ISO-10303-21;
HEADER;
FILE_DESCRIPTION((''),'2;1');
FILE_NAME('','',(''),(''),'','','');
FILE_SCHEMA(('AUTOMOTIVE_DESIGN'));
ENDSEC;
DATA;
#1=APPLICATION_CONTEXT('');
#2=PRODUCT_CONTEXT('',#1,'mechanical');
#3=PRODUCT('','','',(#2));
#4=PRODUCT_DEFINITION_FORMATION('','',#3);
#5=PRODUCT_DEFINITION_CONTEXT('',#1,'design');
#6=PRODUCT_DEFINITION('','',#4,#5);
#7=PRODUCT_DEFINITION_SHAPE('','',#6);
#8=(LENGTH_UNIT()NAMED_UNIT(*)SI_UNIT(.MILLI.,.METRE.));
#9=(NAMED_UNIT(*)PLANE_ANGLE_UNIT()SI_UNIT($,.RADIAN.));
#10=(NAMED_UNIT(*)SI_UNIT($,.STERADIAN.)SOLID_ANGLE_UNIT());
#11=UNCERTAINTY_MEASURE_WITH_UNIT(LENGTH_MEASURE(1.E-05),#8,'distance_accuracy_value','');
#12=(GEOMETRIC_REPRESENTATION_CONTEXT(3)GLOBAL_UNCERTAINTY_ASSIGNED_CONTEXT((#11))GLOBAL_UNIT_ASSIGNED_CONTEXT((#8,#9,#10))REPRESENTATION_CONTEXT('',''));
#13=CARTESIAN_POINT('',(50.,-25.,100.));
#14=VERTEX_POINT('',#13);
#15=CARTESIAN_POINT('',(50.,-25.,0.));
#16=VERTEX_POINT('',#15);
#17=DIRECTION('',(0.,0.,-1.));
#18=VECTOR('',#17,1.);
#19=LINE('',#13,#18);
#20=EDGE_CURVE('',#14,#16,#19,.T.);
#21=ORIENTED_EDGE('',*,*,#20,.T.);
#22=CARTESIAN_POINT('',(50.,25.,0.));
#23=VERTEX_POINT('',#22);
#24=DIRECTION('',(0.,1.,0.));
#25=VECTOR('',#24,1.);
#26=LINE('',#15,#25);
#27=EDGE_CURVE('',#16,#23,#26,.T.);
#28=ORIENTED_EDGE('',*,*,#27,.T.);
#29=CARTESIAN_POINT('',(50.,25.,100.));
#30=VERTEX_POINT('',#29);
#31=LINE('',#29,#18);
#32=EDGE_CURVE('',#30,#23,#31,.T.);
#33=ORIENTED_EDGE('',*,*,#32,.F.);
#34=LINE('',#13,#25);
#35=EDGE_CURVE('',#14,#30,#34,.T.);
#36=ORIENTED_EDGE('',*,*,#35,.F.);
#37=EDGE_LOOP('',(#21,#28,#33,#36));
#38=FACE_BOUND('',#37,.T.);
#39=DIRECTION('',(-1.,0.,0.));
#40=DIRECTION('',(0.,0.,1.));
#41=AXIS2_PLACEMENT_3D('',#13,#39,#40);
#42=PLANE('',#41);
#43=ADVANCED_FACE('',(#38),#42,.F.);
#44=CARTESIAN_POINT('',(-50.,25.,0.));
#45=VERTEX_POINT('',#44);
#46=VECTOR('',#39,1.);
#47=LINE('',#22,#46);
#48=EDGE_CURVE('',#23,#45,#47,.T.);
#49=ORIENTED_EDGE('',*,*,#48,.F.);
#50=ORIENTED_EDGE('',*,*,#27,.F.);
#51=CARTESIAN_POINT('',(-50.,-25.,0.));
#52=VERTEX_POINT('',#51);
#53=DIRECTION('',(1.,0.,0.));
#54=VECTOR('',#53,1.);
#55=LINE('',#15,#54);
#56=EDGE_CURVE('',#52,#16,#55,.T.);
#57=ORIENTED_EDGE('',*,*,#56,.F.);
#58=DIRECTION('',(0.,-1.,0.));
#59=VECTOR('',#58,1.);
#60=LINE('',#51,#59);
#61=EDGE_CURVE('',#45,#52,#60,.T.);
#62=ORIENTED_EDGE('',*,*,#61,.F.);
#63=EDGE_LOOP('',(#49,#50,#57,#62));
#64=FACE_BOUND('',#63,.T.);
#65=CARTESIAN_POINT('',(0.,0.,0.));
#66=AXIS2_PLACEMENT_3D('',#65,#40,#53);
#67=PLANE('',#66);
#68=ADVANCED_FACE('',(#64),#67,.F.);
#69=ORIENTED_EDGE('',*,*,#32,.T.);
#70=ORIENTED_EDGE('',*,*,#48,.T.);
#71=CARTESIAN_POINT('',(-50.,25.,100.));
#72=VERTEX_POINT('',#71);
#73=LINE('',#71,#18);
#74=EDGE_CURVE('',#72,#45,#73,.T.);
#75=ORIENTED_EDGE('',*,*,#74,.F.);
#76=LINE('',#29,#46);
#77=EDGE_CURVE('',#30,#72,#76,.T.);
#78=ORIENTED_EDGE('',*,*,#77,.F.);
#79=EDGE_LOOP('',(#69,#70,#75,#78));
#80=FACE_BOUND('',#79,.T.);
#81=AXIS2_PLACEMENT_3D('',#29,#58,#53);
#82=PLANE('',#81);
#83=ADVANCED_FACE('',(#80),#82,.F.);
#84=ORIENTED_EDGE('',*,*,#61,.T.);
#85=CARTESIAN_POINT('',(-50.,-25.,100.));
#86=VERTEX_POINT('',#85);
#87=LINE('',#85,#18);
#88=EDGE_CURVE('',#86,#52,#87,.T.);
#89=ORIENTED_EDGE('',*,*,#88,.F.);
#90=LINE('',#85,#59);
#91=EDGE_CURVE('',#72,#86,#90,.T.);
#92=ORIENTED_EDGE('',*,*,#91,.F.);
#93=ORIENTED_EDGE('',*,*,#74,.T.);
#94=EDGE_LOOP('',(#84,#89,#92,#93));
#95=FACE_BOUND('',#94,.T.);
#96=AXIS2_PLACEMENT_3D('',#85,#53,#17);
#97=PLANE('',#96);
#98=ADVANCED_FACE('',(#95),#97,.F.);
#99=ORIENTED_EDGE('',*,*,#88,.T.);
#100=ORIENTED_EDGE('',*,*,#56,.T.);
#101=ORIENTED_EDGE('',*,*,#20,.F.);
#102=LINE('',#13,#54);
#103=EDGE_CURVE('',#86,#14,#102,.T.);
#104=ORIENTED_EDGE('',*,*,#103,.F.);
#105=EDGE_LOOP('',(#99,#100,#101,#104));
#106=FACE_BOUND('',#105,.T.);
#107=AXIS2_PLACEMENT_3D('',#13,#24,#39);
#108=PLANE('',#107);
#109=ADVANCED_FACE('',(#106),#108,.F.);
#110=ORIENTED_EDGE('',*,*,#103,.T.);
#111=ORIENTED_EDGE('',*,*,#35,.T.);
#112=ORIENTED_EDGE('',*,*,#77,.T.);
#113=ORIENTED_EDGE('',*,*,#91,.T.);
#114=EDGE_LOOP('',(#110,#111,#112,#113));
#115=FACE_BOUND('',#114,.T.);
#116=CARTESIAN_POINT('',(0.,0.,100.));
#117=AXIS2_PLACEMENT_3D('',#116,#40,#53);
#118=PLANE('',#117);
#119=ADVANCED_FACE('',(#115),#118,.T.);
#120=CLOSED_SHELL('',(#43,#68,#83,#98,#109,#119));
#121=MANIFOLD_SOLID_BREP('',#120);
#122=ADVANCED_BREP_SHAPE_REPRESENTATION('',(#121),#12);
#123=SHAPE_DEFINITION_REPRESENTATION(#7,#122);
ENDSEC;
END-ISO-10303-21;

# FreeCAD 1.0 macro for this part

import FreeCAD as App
import Part
import Sketcher
from FreeCAD import Vector
Q = App.Units.Quantity


def add_polygon(sketch, points):
    """Adds a closed chain of lines whose ends are joined by coincident constraints."""
    first, n = sketch.GeometryCount, len(points)
    for a, b in zip(points, points[1:] + points[:1]):
        sketch.addGeometry(Part.LineSegment(App.Vector(*a, 0), App.Vector(*b, 0)), False)
    for i in range(n):
        sketch.addConstraint(Sketcher.Constraint("Coincident", first + i, 2, first + (i + 1) % n, 1))

doc = App.newDocument("Part")
body = doc.addObject("PartDesign::Body", "Body")

# Sketch on XY plane
sketch1 = body.newObject("Sketcher::SketchObject", "Sketch")
sketch1.AttachmentSupport = (doc.getObject("XY_Plane"), [""])
sketch1.MapMode = "FlatFace"
add_polygon(sketch1, [(-50, 25), (-50, -25), (50, -25), (50, 25)])  # lines 0-3
sketch1.addConstraint(Sketcher.Constraint("Vertical", 0))
sketch1.addConstraint(Sketcher.Constraint("Horizontal", 1))
sketch1.addConstraint(Sketcher.Constraint("Vertical", 2))
sketch1.addConstraint(Sketcher.Constraint("Horizontal", 3))
sketch1.addConstraint(Sketcher.Constraint("Symmetric", 0, 2, 2, 2, -1, 1))
sketch1.addConstraint(Sketcher.Constraint("DistanceX", 1, 1, 1, 2, Q("100 mm")))
sketch1.addConstraint(Sketcher.Constraint("DistanceY", 0, 2, 0, 1, Q("50 mm")))
pad1 = body.newObject("PartDesign::Pad", "Pad")
pad1.Profile = sketch1
pad1.Length = 100

doc.recompute()
